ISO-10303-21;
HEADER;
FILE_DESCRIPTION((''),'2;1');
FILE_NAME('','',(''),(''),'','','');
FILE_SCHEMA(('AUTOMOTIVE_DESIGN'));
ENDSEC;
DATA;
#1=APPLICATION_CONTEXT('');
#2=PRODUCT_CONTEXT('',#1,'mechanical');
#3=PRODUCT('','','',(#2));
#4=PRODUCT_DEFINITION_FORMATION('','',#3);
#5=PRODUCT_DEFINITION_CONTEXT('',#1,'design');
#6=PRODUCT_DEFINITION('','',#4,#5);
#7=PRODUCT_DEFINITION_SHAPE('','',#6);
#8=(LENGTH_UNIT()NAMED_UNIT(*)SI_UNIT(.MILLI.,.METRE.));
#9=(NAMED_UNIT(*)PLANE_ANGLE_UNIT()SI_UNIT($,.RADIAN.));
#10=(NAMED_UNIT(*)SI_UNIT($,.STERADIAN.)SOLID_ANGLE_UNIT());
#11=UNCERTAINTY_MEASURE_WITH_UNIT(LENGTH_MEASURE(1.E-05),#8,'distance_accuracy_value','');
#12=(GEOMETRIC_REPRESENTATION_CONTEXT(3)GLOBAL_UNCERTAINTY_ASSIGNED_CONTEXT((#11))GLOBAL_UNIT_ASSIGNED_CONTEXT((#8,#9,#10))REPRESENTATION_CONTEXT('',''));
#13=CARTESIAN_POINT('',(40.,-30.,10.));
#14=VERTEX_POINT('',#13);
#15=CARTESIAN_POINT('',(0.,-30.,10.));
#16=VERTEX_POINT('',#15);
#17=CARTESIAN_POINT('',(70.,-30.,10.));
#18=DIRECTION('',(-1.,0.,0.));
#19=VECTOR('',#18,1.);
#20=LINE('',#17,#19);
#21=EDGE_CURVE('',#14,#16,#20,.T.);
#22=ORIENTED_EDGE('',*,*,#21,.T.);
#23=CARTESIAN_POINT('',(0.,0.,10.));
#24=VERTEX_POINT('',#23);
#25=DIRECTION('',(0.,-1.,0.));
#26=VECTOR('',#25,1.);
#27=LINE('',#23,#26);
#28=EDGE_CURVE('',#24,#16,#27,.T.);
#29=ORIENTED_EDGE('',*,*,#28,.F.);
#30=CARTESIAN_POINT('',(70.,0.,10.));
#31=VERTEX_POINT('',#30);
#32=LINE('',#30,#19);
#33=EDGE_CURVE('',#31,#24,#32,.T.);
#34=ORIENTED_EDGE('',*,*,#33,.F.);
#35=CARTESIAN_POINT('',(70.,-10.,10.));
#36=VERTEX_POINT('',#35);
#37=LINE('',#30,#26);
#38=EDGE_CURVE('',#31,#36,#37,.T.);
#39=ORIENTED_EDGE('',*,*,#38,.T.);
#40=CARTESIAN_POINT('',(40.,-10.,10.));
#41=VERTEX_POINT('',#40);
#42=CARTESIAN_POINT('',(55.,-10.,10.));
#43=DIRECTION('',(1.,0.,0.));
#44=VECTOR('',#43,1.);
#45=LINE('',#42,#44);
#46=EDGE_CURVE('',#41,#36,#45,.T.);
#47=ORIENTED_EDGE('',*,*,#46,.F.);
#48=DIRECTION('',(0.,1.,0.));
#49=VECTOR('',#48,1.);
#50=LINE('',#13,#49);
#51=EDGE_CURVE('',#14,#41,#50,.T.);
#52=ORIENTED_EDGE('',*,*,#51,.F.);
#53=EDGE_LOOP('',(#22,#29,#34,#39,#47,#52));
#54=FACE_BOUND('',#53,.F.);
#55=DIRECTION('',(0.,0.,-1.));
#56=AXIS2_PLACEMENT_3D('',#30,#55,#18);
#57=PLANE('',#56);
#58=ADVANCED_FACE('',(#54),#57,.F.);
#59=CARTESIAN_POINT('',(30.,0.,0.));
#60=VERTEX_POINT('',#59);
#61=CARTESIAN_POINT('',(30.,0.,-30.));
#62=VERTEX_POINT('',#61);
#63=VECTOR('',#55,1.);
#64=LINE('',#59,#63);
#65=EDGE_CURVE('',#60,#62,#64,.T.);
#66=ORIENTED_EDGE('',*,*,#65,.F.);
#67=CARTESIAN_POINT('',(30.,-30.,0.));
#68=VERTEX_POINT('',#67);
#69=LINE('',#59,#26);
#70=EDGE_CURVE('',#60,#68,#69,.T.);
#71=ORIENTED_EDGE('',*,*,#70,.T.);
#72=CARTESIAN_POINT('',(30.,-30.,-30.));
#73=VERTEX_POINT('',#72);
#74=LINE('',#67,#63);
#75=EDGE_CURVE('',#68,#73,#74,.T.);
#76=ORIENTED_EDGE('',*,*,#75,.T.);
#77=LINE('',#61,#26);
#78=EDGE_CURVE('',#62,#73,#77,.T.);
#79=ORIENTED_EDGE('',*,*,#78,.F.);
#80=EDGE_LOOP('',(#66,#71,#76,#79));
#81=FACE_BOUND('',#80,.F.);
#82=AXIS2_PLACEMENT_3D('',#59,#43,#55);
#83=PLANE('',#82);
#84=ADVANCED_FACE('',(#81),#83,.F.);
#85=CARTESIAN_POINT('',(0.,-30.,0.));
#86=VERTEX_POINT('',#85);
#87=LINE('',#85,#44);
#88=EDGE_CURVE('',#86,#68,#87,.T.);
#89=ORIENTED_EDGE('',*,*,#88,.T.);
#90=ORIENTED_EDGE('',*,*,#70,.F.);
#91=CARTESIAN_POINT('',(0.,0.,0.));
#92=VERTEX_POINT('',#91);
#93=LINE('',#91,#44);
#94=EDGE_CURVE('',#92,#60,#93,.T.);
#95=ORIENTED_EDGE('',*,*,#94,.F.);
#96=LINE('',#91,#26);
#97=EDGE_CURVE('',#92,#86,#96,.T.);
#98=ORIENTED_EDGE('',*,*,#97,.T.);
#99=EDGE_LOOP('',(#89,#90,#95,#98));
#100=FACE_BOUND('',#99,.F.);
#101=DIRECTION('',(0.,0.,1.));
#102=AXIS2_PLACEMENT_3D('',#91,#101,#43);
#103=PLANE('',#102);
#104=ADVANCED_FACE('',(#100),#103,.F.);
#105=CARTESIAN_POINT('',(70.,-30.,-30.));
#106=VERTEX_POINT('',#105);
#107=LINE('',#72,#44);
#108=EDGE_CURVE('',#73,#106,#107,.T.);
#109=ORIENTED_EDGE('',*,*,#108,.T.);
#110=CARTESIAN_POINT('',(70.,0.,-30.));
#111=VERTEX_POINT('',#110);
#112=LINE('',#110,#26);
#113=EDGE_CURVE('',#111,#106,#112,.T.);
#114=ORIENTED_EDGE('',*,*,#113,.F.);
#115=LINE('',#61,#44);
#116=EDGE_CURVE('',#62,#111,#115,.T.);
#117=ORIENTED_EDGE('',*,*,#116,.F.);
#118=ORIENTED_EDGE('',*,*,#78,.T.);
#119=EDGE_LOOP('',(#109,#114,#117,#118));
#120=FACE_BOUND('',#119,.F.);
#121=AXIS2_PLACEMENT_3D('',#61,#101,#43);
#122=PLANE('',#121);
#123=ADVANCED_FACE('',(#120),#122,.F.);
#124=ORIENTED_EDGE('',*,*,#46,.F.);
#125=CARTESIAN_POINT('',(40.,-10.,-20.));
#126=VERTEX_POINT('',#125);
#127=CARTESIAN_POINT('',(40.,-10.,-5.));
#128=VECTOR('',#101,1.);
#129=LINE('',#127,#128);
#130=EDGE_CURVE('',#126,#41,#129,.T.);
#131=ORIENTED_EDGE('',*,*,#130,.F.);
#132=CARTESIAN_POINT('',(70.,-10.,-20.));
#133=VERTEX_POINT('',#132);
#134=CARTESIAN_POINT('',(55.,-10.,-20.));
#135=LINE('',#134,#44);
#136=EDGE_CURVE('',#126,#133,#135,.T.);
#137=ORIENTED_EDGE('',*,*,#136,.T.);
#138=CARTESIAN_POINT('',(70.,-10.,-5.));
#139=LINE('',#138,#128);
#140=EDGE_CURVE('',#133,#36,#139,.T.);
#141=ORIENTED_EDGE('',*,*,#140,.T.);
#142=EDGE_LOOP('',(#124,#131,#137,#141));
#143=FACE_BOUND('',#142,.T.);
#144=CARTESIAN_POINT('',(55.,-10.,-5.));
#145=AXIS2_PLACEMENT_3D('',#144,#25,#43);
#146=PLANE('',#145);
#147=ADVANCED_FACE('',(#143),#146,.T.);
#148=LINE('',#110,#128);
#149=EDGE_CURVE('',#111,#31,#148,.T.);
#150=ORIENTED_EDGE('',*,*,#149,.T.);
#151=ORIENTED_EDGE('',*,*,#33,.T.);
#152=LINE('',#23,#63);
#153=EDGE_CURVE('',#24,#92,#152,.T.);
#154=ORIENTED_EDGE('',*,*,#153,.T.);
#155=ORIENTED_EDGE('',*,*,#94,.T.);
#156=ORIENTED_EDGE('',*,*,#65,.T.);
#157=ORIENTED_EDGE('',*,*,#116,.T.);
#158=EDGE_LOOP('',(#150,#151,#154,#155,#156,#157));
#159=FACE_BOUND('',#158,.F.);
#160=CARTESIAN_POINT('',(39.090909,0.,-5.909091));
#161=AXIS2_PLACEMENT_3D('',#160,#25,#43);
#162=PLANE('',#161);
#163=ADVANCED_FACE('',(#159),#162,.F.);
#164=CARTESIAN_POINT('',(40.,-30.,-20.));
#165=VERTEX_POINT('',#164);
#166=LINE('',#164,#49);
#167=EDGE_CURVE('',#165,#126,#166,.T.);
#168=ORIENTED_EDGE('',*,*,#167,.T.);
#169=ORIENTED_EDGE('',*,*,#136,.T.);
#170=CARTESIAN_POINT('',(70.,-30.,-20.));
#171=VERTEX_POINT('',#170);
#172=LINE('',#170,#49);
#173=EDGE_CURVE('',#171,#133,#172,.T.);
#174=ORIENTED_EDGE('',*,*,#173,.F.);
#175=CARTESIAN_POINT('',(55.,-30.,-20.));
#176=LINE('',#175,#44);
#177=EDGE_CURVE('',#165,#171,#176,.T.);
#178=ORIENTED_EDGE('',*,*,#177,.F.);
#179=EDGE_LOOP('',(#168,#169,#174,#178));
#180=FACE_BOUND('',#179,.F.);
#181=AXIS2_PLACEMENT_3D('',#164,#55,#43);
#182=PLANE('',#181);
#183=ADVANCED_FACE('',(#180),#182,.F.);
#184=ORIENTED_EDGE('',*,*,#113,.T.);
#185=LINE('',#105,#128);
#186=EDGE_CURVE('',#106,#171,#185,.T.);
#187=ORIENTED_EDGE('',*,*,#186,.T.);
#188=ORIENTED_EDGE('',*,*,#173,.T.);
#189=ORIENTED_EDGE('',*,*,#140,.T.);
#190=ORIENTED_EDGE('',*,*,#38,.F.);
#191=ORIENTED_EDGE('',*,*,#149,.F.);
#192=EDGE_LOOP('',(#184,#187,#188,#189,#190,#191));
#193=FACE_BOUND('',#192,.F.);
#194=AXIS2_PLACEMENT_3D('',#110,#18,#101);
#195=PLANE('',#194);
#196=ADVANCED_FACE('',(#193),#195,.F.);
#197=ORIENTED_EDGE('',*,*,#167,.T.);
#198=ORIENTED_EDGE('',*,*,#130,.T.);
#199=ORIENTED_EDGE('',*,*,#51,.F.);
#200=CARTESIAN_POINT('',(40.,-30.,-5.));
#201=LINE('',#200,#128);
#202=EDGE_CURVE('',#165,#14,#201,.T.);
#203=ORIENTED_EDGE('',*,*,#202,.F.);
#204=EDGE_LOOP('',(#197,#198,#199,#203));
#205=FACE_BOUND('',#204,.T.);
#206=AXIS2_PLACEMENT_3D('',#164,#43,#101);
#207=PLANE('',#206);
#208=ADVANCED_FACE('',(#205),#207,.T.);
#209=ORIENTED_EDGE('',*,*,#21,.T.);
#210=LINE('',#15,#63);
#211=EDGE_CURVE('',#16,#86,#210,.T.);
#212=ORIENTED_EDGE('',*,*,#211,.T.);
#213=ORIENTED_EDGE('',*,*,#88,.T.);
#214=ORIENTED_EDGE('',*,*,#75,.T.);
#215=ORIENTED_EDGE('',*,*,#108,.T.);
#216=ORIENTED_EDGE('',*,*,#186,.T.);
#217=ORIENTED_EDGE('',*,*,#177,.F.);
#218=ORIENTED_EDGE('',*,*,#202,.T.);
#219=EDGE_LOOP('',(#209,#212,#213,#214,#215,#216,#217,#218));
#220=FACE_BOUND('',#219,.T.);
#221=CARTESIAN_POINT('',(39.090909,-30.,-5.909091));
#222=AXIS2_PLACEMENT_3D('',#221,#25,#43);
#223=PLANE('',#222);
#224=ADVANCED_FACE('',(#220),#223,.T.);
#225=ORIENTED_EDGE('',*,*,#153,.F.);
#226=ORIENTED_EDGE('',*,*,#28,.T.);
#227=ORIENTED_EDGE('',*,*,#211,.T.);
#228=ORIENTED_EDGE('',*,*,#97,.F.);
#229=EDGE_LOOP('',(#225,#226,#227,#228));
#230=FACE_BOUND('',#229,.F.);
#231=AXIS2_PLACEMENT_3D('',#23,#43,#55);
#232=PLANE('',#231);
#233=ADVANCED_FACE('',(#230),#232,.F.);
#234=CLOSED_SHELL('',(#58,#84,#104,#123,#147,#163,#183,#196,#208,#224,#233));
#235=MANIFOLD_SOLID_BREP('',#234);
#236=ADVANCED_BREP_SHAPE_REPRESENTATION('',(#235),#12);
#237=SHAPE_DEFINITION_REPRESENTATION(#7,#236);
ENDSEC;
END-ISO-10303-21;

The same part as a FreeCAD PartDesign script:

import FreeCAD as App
import Part
import Sketcher
from FreeCAD import Vector
Q = App.Units.Quantity


def add_polygon(sketch, points):
    """Adds a closed chain of lines whose ends are joined by coincident constraints."""
    first, n = sketch.GeometryCount, len(points)
    for a, b in zip(points, points[1:] + points[:1]):
        sketch.addGeometry(Part.LineSegment(App.Vector(*a, 0), App.Vector(*b, 0)), False)
    for i in range(n):
        sketch.addConstraint(Sketcher.Constraint("Coincident", first + i, 2, first + (i + 1) % n, 1))

doc = App.newDocument("Part")
body = doc.addObject("PartDesign::Body", "Body")

sketch1 = body.newObject("Sketcher::SketchObject", "Sketch")
sketch1.AttachmentSupport = (doc.getObject("XZ_Plane"), [""])
sketch1.MapMode = "FlatFace"
add_polygon(sketch1, [(0, 10), (0, 0), (30, 0), (30, -30), (70, -30), (70, 10)])
sketch1.addConstraint(Sketcher.Constraint("Vertical", 0))
sketch1.addConstraint(Sketcher.Constraint("Horizontal", 1))
sketch1.addConstraint(Sketcher.Constraint("Vertical", 2))
sketch1.addConstraint(Sketcher.Constraint("Horizontal", 3))
sketch1.addConstraint(Sketcher.Constraint("Vertical", 4))
sketch1.addConstraint(Sketcher.Constraint("Horizontal", 5))
sketch1.addConstraint(Sketcher.Constraint("Coincident", 0, 2, -1, 1))
sketch1.addConstraint(Sketcher.Constraint("Equal", 1, 2))
sketch1.addConstraint(Sketcher.Constraint("Equal", 3, 4))
sketch1.addConstraint(Sketcher.Constraint("DistanceX", 1, 1, 1, 2, Q("30 mm")))
sketch1.addConstraint(Sketcher.Constraint("DistanceX", 3, 1, 3, 2, Q("40 mm")))
pad1 = body.newObject("PartDesign::Pad", "Pad")
pad1.Profile = sketch1
pad1.Length = 30

sketch2 = body.newObject("Sketcher::SketchObject", "Sketch001")
sketch2.AttachmentSupport = (doc.getObject("XZ_Plane"), [""])
sketch2.MapMode = "FlatFace"
sketch2.AttachmentOffset = App.Placement(Vector(0, 0, 30), App.Rotation())
add_polygon(sketch2, [(40, 10), (40, -20), (70, -20), (70, 10)])
sketch2.addConstraint(Sketcher.Constraint("Vertical", 0))
sketch2.addConstraint(Sketcher.Constraint("Horizontal", 1))
sketch2.addConstraint(Sketcher.Constraint("Vertical", 2))
sketch2.addConstraint(Sketcher.Constraint("Horizontal", 3))
sketch2.addConstraint(Sketcher.Constraint("Equal", 3, 0))
sketch2.addConstraint(Sketcher.Constraint("DistanceX", 1, 1, 1, 2, Q("30 mm")))
sketch2.addConstraint(Sketcher.Constraint("DistanceX", -1, 1, 0, 2, Q("40 mm")))
sketch2.addConstraint(Sketcher.Constraint("DistanceY", 0, 2, -1, 1, Q("20 mm")))
pocket1 = body.newObject("PartDesign::Pocket", "Pocket")
pocket1.Profile = sketch2
pocket1.Length = 20

doc.recompute()
